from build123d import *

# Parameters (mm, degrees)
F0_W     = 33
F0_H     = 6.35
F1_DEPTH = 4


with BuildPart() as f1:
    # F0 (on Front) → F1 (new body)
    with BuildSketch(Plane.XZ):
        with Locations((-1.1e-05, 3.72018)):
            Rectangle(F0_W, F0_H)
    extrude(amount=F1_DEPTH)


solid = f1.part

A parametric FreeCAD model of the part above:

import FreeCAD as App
import Part
import Sketcher
Q = App.Units.Quantity


def add_polygon(sketch, points):
    """Adds a closed chain of lines whose ends are joined by coincident constraints."""
    first, n = sketch.GeometryCount, len(points)
    for a, b in zip(points, points[1:] + points[:1]):
        sketch.addGeometry(Part.LineSegment(App.Vector(*a, 0), App.Vector(*b, 0)), False)
    for i in range(n):
        sketch.addConstraint(Sketcher.Constraint("Coincident", first + i, 2, first + (i + 1) % n, 1))

doc = App.newDocument("Part")
body = doc.addObject("PartDesign::Body", "Body")

# Sketch on XZ plane
sketch1 = doc.addObject("Sketcher::SketchObject", "Sketch")
body.addObject(sketch1)
sketch1.AttachmentSupport = (doc.XZ_Plane, [""])
sketch1.MapMode = "FlatFace"
add_polygon(sketch1, [(-17, 7), (-17, 1), (16, 1), (16, 7)])  # lines 0-3
sketch1.addConstraint([
    Sketcher.Constraint("Vertical", 0),
    Sketcher.Constraint("Horizontal", 1),
    Sketcher.Constraint("Vertical", 2),
    Sketcher.Constraint("Horizontal", 3),
    Sketcher.Constraint("DistanceX", 1, 1, 1, 2, Q("33 mm")),
    Sketcher.Constraint("DistanceY", 0, 2, 0, 1, Q("6.35 mm")),
    Sketcher.Constraint("DistanceX", 0, 2, -1, 1, Q("16.500011 mm")),
    Sketcher.Constraint("DistanceY", -1, 1, 0, 2, Q("0.54518 mm")),
])
pad1 = doc.addObject("PartDesign::Pad", "Pad")
body.addObject(pad1)
pad1.Profile = sketch1
pad1.Length = 4

doc.recompute()
